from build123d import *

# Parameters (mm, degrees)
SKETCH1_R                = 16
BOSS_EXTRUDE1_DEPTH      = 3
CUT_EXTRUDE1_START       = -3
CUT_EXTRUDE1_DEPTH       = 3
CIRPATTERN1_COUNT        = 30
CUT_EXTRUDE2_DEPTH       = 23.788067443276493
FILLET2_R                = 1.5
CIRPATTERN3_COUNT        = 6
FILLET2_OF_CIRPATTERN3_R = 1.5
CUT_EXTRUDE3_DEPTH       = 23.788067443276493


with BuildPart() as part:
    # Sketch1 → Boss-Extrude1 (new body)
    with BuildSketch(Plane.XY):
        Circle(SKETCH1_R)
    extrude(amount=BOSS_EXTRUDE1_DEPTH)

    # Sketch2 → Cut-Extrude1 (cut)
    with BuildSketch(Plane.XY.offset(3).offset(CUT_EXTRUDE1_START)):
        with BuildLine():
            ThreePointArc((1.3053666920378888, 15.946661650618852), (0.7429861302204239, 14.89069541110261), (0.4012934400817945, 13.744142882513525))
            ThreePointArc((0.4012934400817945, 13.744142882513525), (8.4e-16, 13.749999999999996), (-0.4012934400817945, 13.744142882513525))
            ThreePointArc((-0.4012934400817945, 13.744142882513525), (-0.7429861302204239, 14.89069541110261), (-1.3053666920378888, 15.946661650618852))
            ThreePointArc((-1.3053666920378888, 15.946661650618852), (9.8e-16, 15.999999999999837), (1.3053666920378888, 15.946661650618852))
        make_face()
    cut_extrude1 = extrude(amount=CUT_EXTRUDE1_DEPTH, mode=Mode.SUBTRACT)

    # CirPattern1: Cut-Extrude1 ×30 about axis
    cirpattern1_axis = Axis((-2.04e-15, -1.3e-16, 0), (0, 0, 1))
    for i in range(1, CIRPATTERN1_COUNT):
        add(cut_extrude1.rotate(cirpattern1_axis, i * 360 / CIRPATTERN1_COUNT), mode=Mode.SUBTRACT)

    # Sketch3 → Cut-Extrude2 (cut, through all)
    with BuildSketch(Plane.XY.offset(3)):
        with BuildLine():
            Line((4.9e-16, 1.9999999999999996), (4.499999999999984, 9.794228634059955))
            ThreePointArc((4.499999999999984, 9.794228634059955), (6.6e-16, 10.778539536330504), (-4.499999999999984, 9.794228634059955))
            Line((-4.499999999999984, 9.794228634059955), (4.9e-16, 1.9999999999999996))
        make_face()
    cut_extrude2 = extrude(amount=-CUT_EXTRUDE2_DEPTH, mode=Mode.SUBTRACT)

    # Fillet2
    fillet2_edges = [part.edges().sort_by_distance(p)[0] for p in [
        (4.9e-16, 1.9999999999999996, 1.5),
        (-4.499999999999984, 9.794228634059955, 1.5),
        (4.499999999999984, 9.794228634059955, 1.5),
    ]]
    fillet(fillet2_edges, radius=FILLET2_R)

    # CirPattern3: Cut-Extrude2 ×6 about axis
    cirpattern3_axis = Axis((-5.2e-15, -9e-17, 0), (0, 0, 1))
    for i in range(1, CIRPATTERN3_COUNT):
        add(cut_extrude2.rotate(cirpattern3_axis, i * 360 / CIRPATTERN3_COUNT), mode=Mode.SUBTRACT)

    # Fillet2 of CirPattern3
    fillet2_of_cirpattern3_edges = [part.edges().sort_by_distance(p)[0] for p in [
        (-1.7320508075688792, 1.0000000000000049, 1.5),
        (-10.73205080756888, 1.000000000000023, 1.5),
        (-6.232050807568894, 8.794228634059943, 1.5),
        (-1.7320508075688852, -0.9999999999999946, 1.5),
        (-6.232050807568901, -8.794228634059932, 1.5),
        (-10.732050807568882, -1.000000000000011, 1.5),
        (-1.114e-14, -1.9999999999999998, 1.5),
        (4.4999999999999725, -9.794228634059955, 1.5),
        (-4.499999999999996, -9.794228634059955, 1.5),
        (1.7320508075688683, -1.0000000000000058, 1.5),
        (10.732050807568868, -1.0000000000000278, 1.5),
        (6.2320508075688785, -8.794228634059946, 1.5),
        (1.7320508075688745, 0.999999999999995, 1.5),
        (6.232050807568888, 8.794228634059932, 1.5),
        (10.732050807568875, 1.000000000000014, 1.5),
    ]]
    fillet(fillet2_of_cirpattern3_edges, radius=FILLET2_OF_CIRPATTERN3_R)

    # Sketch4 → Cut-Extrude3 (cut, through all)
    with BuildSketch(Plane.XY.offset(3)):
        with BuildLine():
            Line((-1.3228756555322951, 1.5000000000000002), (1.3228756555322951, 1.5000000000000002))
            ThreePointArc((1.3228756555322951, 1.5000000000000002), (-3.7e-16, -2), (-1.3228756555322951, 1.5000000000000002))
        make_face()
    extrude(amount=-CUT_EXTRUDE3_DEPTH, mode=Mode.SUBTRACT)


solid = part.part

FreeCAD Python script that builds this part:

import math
import FreeCAD as App
import Part
import Sketcher
Q = App.Units.Quantity


def edges_at(feature, points):
    """Names of the edges that pass closest to the given points."""
    edges = feature.Shape.Edges
    near = lambda p: min(range(len(edges)), key=lambda i: edges[i].distToShape(Part.Vertex(*p))[0])
    return sorted({f"Edge{near(p) + 1}" for p in points})

doc = App.newDocument("Part")
body = doc.addObject("PartDesign::Body", "Body")

# Sketch on XY plane
sketch1 = body.newObject("Sketcher::SketchObject", "Sketch")
sketch1.AttachmentSupport = (doc.getObject("XY_Plane"), [""])
sketch1.MapMode = "FlatFace"
sketch1.addGeometry(Part.Circle(App.Vector(0, 0, 0), App.Vector(0, 0, 1), 16), False)
sketch1.addConstraint(Sketcher.Constraint("Coincident", 0, 3, -1, 1))
sketch1.addConstraint(Sketcher.Constraint("Diameter", 0, 32.0))
pad1 = body.newObject("PartDesign::Pad", "Pad")
pad1.Profile = sketch1
pad1.Length = 3

# Sketch on XY plane
sketch2 = body.newObject("Sketcher::SketchObject", "Sketch001")
sketch2.AttachmentSupport = (doc.getObject("XY_Plane"), [""])
sketch2.MapMode = "FlatFace"
sketch2.addGeometry(Part.ArcOfCircle(Part.Circle(App.Vector(6.3, 12.6, 0), App.Vector(0, 0, 1), 6), math.radians(146), math.radians(169)), False)
sketch2.addGeometry(Part.ArcOfCircle(Part.Circle(App.Vector(0, 0, 0), App.Vector(0, 0, 1), 16), math.radians(85.32), math.radians(94.68)), False)
sketch2.addGeometry(Part.ArcOfCircle(Part.Circle(App.Vector(-6.3, 12.6, 0), App.Vector(0, 0, 1), 6), math.radians(11), math.radians(34)), False)
sketch2.addGeometry(Part.ArcOfCircle(Part.Circle(App.Vector(0, 0, 0), App.Vector(0, 0, 1), 13.8), math.radians(88.33), math.radians(91.67)), False)
sketch2.addConstraint(Sketcher.Constraint("Coincident", 0, 1, 1, 1))
sketch2.addConstraint(Sketcher.Constraint("Coincident", 1, 2, 2, 2))
sketch2.addConstraint(Sketcher.Constraint("Coincident", 2, 1, 3, 2))
sketch2.addConstraint(Sketcher.Constraint("Coincident", 3, 1, 0, 2))
sketch2.addConstraint(Sketcher.Constraint("Coincident", 1, 3, -1, 1))
sketch2.addConstraint(Sketcher.Constraint("Coincident", 3, 3, -1, 1))
sketch2.addConstraint(Sketcher.Constraint("Equal", 0, 2))
sketch2.addConstraint(Sketcher.Constraint("Symmetric", 0, 3, 2, 3, -2))
sketch2.addConstraint(Sketcher.Constraint("Radius", 0, 6.0))
sketch2.addConstraint(Sketcher.Constraint("Radius", 1, 16.0))
sketch2.addConstraint(Sketcher.Constraint("Radius", 3, 13.75))
sketch2.addConstraint(Sketcher.Constraint("DistanceY", -1, 1, 0, 3, 12.612331))
sketch2.addConstraint(Sketcher.Constraint("DistanceY", -1, 1, 0, 1, 15.946662))
pocket1 = body.newObject("PartDesign::Pocket", "Pocket")
pocket1.Profile = sketch2
pocket1.Length = 3
pocket1.Reversed = True
doc.recompute()

polarpattern = body.newObject("PartDesign::PolarPattern", "PolarPattern")
polarpattern.Originals = [pocket1]
polarpattern.Axis = (doc.getObject("Z_Axis"), [""])
polarpattern.Angle = 360
polarpattern.Occurrences = 30
body.Tip = polarpattern

# Sketch on XY plane
sketch3 = body.newObject("Sketcher::SketchObject", "Sketch002")
sketch3.AttachmentSupport = (doc.getObject("XY_Plane"), [""])
sketch3.MapMode = "FlatFace"
sketch3.AttachmentOffset = App.Placement(App.Vector(0, 0, 3), App.Rotation())
sketch3.addGeometry(Part.LineSegment(App.Vector(0, 2, 0), App.Vector(4, 10, 0)), False)
sketch3.addGeometry(Part.ArcOfCircle(Part.Circle(App.Vector(0, 0, 0), App.Vector(0, 0, 1), 11), math.radians(65), math.radians(115)), False)
sketch3.addGeometry(Part.LineSegment(App.Vector(-4, 10, 0), App.Vector(0, 2, 0)), False)
sketch3.addConstraint(Sketcher.Constraint("Coincident", 0, 2, 1, 1))
sketch3.addConstraint(Sketcher.Constraint("Coincident", 1, 2, 2, 1))
sketch3.addConstraint(Sketcher.Constraint("Coincident", 2, 2, 0, 1))
sketch3.addConstraint(Sketcher.Constraint("Coincident", 1, 3, -1, 1))
sketch3.addConstraint(Sketcher.Constraint("PointOnObject", 2, 2, -2))
sketch3.addConstraint(Sketcher.Constraint("Horizontal", 0, 2, 1, 2))
sketch3.addConstraint(Sketcher.Constraint("Angle", 0, Q("60 deg")))
sketch3.addConstraint(Sketcher.Constraint("Distance", 0, 9.0))
sketch3.addConstraint(Sketcher.Constraint("DistanceY", -1, 1, 2, 2, 2.0))
pocket2 = body.newObject("PartDesign::Pocket", "Pocket001")
pocket2.Profile = sketch3
pocket2.Type = "ThroughAll"
doc.recompute()

fillet = body.newObject("PartDesign::Fillet", "Fillet")
fillet.Base = (pocket2, edges_at(pocket2, [(0, 2, 1.5), (-4.5, 9.794, 1.5), (4.5, 9.794, 1.5)]))
fillet.Radius = 1.5
doc.recompute()

polarpattern2 = body.newObject("PartDesign::PolarPattern", "PolarPattern001")
polarpattern2.Originals = [pocket2]
polarpattern2.Axis = (doc.getObject("Z_Axis"), [""])
polarpattern2.Angle = 360
polarpattern2.Occurrences = 6
body.Tip = polarpattern2
doc.recompute()

fillet2 = body.newObject("PartDesign::Fillet", "Fillet001")
fillet2.Base = (polarpattern2, edges_at(polarpattern2, [
    (-1.732, 1, 1.5),
    (-10.732, 1, 1.5),
    (-6.232, 8.794, 1.5),
    (-1.732, -1, 1.5),
    (-6.232, -8.794, 1.5),
    (-10.732, -1, 1.5),
    (0, -2, 1.5),
    (4.5, -9.794, 1.5),
    (-4.5, -9.794, 1.5),
    (1.732, -1, 1.5),
    (10.732, -1, 1.5),
    (6.232, -8.794, 1.5),
    (1.732, 1, 1.5),
    (6.232, 8.794, 1.5),
    (10.732, 1, 1.5),
]))
fillet2.Radius = 1.5

# Sketch on XY plane
sketch4 = body.newObject("Sketcher::SketchObject", "Sketch003")
sketch4.AttachmentSupport = (doc.getObject("XY_Plane"), [""])
sketch4.MapMode = "FlatFace"
sketch4.AttachmentOffset = App.Placement(App.Vector(0, 0, 3), App.Rotation())
sketch4.addGeometry(Part.LineSegment(App.Vector(1.3, 1.5, 0), App.Vector(-1.3, 1.5, 0)), False)
sketch4.addGeometry(Part.ArcOfCircle(Part.Circle(App.Vector(0, 0, 0), App.Vector(0, 0, 1), 2), math.radians(131), math.radians(409)), False)
sketch4.addConstraint(Sketcher.Constraint("Coincident", 0, 1, 1, 2))
sketch4.addConstraint(Sketcher.Constraint("Coincident", 1, 1, 0, 2))
sketch4.addConstraint(Sketcher.Constraint("Horizontal", 0))
sketch4.addConstraint(Sketcher.Constraint("Coincident", 1, 3, -1, 1))
sketch4.addConstraint(Sketcher.Constraint("Radius", 1, 2.0))
sketch4.addConstraint(Sketcher.Constraint("DistanceY", -1, 1, 0, 1, 1.5))
pocket3 = body.newObject("PartDesign::Pocket", "Pocket002")
pocket3.Profile = sketch4
pocket3.Type = "ThroughAll"

doc.recompute()
